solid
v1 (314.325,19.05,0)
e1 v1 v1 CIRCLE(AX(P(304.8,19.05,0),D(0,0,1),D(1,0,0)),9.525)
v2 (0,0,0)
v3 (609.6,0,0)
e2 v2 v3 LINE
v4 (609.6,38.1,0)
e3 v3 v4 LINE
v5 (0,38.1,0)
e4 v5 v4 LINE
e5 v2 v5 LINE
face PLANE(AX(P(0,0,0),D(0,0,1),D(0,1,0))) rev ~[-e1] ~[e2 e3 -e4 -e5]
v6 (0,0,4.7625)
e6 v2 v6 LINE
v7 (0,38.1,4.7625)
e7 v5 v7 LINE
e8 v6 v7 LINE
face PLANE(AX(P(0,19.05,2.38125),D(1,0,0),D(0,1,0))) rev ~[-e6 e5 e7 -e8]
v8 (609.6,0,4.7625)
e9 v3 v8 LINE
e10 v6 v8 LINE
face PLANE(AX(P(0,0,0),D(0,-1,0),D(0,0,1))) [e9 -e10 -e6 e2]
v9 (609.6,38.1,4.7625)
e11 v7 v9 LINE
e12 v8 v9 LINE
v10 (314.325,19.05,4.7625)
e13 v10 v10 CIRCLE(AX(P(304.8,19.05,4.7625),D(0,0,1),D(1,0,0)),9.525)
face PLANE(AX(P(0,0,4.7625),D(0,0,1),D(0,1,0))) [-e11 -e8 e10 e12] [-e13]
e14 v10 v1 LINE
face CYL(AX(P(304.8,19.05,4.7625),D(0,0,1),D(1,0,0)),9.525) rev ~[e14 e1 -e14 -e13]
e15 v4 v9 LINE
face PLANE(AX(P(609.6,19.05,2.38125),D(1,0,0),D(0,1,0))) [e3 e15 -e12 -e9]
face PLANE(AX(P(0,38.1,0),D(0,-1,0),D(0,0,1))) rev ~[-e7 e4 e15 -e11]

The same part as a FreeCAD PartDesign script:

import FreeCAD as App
import Part
import Sketcher
from FreeCAD import Vector
Q = App.Units.Quantity

doc = App.newDocument("Part")
params = doc.addObject("Spreadsheet::Sheet", "Params")
for row, (alias, value) in enumerate([
    ("sketch1_width", "1.5 in"),
    ("sketch1_height", "0.1875 in"),
    ("pad1_length", "24 in"),
    ("sketch2_diameter", "0.75 in"),
    ("pocket1_length", "1 in"),
], start=1):
    params.set(f"A{row}", alias)
    params.set(f"B{row}", "=" + value)
    params.setAlias(f"B{row}", alias)

body = doc.addObject("PartDesign::Body", "Body")

# Sketch on YZ plane
sketch1 = body.newObject("Sketcher::SketchObject", "Sketch")
sketch1.AttachmentSupport = (doc.getObject("YZ_Plane"), [""])
sketch1.MapMode = "FlatFace"
sketch1.addGeometry([
    Part.LineSegment(Vector(0, 4.8, 0), Vector(0, 0, 0)),
    Part.LineSegment(Vector(0, 0, 0), Vector(38.1, 0, 0)),
    Part.LineSegment(Vector(38.1, 0, 0), Vector(38.1, 4.8, 0)),
    Part.LineSegment(Vector(38.1, 4.8, 0), Vector(0, 4.8, 0)),
], False)
sketch1.addConstraint([
    Sketcher.Constraint("Coincident", 0, 2, 1, 1),
    Sketcher.Constraint("Coincident", 1, 2, 2, 1),
    Sketcher.Constraint("Coincident", 2, 2, 3, 1),
    Sketcher.Constraint("Coincident", 3, 2, 0, 1),
    Sketcher.Constraint("Vertical", 0),
    Sketcher.Constraint("Horizontal", 1),
    Sketcher.Constraint("Vertical", 2),
    Sketcher.Constraint("Horizontal", 3),
    Sketcher.Constraint("Coincident", 0, 2, -1, 1),
    Sketcher.Constraint("DistanceX", 1, 1, 1, 2, Q("1.5 in")),
    Sketcher.Constraint("DistanceY", 0, 2, 0, 1, Q("0.1875 in")),
])
sketch1.setExpression("Constraints[9]", "Params.sketch1_width")
sketch1.setExpression("Constraints[10]", "Params.sketch1_height")
pad1 = body.newObject("PartDesign::Pad", "Pad")
pad1.Profile = sketch1
pad1.setExpression("Length", "Params.pad1_length")

# Sketch on XY plane
sketch2 = body.newObject("Sketcher::SketchObject", "Sketch001")
sketch2.AttachmentSupport = (doc.getObject("XY_Plane"), [""])
sketch2.MapMode = "FlatFace"
sketch2.AttachmentOffset = App.Placement(Vector(0, 0, 0.1875 * 25.4), App.Rotation())
sketch2.addGeometry(Part.Circle(Vector(305, 19, 0), Vector(0, 0, 1), 10), False)
sketch2.addConstraint([
    Sketcher.Constraint("Diameter", 0, Q("0.75 in")),
    Sketcher.Constraint("DistanceX", -1, 1, 0, 3, Q("12 in")),
    Sketcher.Constraint("DistanceY", -1, 1, 0, 3, Q("0.75 in")),
])
sketch2.setExpression("Constraints[0]", "Params.sketch2_diameter")
pocket1 = body.newObject("PartDesign::Pocket", "Pocket")
pocket1.Profile = sketch2
pocket1.setExpression("Length", "Params.pocket1_length")

doc.recompute()
